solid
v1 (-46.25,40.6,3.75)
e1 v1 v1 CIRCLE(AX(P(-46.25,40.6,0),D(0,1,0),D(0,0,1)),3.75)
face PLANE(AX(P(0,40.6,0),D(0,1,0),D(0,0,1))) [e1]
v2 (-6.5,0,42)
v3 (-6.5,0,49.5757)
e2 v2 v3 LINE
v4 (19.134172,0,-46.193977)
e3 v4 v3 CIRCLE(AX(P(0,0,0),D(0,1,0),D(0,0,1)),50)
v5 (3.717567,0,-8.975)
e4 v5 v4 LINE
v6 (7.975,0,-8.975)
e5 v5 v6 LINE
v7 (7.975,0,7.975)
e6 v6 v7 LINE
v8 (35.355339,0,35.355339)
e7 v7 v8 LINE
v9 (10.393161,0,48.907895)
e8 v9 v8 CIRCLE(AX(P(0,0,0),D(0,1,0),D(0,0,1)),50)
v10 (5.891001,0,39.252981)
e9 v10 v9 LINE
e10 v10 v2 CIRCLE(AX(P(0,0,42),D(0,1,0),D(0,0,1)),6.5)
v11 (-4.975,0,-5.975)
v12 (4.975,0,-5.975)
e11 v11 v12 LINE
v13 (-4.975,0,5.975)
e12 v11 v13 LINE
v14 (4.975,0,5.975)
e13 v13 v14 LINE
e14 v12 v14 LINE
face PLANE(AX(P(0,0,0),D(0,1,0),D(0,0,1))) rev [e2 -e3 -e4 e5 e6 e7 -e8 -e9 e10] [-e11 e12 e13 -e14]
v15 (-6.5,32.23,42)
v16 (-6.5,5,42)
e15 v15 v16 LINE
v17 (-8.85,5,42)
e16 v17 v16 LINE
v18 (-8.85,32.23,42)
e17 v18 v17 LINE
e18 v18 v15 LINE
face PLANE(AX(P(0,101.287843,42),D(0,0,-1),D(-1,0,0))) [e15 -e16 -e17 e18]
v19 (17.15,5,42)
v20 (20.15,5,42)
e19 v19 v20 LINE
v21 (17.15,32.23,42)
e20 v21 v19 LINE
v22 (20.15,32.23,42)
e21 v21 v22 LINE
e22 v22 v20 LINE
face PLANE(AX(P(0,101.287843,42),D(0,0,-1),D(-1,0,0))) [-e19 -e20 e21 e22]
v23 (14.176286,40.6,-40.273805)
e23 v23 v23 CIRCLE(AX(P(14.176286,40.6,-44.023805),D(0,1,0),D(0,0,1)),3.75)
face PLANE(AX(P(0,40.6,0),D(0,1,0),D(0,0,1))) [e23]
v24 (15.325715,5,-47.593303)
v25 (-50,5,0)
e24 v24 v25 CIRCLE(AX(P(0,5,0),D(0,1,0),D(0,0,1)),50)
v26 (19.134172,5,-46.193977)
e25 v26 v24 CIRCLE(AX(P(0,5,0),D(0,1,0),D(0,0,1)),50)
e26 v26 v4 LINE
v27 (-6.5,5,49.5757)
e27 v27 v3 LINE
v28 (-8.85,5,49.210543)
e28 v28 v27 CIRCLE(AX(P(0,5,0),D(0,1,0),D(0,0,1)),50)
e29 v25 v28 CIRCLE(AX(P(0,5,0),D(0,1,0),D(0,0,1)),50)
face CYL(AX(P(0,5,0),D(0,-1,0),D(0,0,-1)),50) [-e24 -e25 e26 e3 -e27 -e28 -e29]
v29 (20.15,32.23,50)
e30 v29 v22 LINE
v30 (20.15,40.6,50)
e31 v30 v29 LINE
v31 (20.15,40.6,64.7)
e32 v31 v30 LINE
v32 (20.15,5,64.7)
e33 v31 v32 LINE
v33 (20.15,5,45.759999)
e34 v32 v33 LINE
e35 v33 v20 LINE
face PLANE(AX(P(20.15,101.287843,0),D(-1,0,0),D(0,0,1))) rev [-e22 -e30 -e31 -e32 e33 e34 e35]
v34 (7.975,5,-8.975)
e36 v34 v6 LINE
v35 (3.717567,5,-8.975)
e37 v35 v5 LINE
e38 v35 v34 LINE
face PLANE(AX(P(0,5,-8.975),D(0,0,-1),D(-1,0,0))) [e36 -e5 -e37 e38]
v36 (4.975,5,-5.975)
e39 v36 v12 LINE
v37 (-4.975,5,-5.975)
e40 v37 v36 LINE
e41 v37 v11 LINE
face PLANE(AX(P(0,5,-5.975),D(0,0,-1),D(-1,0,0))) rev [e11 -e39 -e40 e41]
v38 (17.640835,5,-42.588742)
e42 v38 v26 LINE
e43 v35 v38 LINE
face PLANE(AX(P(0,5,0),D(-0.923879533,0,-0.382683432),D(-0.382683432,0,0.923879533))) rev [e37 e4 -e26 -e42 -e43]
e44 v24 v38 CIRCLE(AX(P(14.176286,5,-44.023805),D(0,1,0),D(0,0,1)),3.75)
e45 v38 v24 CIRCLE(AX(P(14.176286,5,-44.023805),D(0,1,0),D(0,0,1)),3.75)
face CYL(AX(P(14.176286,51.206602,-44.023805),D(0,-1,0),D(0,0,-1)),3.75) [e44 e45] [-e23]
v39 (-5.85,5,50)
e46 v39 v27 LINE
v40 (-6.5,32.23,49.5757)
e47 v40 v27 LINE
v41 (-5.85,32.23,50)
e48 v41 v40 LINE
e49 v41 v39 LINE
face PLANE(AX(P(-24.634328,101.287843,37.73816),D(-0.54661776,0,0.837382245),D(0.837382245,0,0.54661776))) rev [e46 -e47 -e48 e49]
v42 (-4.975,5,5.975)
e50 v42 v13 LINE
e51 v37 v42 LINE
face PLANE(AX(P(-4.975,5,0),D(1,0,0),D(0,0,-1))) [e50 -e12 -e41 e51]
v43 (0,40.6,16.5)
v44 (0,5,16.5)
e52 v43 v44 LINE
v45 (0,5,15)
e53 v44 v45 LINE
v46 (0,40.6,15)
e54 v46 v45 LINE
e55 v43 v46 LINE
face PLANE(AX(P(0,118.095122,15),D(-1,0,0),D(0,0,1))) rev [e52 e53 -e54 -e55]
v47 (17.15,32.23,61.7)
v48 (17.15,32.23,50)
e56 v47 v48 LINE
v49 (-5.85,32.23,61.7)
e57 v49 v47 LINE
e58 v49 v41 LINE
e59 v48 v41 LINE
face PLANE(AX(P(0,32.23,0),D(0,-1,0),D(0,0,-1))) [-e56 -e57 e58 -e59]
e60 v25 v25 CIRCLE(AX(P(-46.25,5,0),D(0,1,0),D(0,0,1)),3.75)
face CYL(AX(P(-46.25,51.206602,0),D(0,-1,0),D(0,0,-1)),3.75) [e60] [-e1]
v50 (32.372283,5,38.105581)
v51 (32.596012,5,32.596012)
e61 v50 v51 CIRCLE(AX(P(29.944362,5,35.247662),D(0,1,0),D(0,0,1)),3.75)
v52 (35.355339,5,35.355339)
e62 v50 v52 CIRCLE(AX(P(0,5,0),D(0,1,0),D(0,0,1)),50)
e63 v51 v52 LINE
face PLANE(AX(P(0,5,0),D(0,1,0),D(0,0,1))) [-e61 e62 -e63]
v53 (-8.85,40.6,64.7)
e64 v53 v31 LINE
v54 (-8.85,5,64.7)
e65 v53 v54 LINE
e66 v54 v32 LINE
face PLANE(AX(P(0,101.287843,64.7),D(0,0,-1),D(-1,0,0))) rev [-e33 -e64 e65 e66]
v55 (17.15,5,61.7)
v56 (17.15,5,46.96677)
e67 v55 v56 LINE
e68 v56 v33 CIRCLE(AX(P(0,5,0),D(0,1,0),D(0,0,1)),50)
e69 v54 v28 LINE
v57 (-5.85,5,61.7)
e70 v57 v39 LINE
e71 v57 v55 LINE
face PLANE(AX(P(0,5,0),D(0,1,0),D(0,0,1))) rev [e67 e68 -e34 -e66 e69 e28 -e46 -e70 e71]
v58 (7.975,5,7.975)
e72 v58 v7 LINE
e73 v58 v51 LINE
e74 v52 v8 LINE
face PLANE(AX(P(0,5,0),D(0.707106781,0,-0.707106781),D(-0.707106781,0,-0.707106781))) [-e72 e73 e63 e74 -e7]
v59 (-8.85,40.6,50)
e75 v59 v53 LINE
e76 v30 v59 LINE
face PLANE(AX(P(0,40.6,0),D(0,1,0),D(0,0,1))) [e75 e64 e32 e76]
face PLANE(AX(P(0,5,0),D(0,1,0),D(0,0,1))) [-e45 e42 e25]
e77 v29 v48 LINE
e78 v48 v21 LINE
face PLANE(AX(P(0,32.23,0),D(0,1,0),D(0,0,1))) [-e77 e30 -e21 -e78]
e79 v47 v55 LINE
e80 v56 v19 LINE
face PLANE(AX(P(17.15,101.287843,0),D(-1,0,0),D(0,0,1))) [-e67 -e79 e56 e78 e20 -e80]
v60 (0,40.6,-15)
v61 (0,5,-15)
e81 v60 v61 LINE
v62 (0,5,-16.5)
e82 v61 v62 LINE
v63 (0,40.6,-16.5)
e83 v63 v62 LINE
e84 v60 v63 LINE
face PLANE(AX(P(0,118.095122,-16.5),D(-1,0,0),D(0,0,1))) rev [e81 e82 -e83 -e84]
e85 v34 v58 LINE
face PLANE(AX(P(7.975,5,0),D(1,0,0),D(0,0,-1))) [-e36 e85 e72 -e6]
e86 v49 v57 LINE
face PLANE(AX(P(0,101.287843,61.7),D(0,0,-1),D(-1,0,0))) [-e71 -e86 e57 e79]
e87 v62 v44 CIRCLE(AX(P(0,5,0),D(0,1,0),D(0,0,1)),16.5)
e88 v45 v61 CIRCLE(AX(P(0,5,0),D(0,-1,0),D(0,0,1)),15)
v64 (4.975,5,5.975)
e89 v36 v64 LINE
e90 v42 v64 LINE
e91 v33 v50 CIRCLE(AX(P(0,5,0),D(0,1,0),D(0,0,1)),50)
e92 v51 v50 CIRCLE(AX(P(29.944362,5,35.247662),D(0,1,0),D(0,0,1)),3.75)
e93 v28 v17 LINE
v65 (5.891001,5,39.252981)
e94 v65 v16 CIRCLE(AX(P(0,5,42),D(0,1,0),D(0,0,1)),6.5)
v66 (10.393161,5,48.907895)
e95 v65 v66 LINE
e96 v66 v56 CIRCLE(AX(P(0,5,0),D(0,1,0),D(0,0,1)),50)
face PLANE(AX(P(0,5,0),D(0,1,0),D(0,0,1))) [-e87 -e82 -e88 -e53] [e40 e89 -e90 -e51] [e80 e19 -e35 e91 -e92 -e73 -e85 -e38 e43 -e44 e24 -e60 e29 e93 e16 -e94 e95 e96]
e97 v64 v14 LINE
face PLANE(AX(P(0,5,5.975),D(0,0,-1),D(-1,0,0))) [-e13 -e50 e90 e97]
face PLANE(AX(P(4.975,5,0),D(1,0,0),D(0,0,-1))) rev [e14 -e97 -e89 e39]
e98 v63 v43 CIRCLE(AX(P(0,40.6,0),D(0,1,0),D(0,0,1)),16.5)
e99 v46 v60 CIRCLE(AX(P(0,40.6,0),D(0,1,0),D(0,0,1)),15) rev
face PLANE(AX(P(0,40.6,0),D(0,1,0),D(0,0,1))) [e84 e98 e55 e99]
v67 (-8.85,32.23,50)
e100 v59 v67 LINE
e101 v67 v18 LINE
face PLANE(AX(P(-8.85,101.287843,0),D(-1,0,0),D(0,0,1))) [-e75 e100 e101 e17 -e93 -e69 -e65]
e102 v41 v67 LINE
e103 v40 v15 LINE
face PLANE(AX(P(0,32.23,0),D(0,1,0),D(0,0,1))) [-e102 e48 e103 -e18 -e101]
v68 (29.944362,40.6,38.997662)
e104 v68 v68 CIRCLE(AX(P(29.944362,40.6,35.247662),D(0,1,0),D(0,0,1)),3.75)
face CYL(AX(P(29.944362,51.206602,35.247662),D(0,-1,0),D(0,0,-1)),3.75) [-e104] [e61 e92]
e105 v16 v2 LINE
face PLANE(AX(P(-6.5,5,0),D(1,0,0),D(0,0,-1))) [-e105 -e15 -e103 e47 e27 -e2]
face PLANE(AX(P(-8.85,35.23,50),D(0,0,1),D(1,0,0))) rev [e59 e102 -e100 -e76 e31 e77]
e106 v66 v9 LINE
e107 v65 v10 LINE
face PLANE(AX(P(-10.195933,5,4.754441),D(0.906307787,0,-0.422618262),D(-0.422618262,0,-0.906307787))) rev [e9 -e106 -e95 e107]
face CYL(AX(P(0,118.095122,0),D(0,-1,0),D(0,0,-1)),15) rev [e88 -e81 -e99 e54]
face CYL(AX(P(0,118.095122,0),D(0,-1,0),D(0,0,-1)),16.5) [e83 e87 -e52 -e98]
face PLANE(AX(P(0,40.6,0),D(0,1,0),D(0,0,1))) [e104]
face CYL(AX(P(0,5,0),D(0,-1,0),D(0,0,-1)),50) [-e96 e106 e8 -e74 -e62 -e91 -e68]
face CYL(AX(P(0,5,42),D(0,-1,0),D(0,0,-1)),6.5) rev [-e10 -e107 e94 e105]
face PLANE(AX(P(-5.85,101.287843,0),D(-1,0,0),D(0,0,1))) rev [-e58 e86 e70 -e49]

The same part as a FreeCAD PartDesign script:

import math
import FreeCAD as App
import Part
import Sketcher

V = App.Vector
Q = App.Units.Quantity


def add_polygon(sketch, points):
    """Adds a closed chain of lines whose ends are joined by coincident constraints."""
    first, n = sketch.GeometryCount, len(points)
    for a, b in zip(points, points[1:] + points[:1]):
        sketch.addGeometry(Part.LineSegment(App.Vector(*a, 0), App.Vector(*b, 0)), False)
    for i in range(n):
        sketch.addConstraint(Sketcher.Constraint("Coincident", first + i, 2, first + (i + 1) % n, 1))

doc = App.newDocument("Part")
body = doc.addObject("PartDesign::Body", "Body")

# Sketch on XZ plane
sketch1 = body.newObject("Sketcher::SketchObject", "Sketch")
sketch1.AttachmentSupport = (doc.getObject("XZ_Plane"), [""])
sketch1.MapMode = "FlatFace"
sketch1.addGeometry(Part.LineSegment(V(35.4, 35.4, 0), V(8, 8, 0)), False)  # 0
sketch1.addGeometry(Part.LineSegment(V(8, 8, 0), V(8, -9, 0)), False)  # 1
sketch1.addGeometry(Part.LineSegment(V(8, -9, 0), V(3.7, -9, 0)), False)  # 2
sketch1.addGeometry(Part.LineSegment(V(3.7, -9, 0), V(19.1, -46.2, 0)), False)  # 3
sketch1.addGeometry(Part.ArcOfCircle(Part.Circle(V(0, 0, 0), V(0, 0, 1), 50), math.radians(97), math.radians(292)), False)  # 4
sketch1.addGeometry(Part.LineSegment(V(-6.5, 49.6, 0), V(-6.5, 42, 0)), False)  # 5
sketch1.addGeometry(Part.ArcOfCircle(Part.Circle(V(0, 42, 0), V(0, 0, 1), 6.5), math.radians(180), math.radians(335)), False)  # 6
sketch1.addGeometry(Part.LineSegment(V(5.9, 39.3, 0), V(10.4, 48.9, 0)), False)  # 7
sketch1.addGeometry(Part.ArcOfCircle(Part.Circle(V(0, 0, 0), V(0, 0, 1), 50), math.radians(45), math.radians(78)), False)  # 8
add_polygon(sketch1, [(5, 6), (-5, 6), (-5, -6), (5, -6)])  # lines 9-12
sketch1.addConstraint([
    Sketcher.Constraint("Coincident", 0, 2, 1, 1),
    Sketcher.Constraint("Coincident", 1, 2, 2, 1),
    Sketcher.Constraint("Coincident", 2, 2, 3, 1),
    Sketcher.Constraint("Coincident", 3, 2, 4, 2),
    Sketcher.Constraint("Coincident", 4, 1, 5, 1),
    Sketcher.Constraint("Tangent", 5, 2, 6, 1),
    Sketcher.Constraint("Tangent", 6, 2, 7, 1),
    Sketcher.Constraint("Coincident", 7, 2, 8, 2),
    Sketcher.Constraint("Coincident", 8, 1, 0, 1),
    Sketcher.Constraint("Vertical", 1),
    Sketcher.Constraint("Horizontal", 2),
    Sketcher.Constraint("Vertical", 5),
    Sketcher.Constraint("Horizontal", 9),
    Sketcher.Constraint("Vertical", 10),
    Sketcher.Constraint("Horizontal", 11),
    Sketcher.Constraint("Vertical", 12),
    Sketcher.Constraint("Coincident", 4, 3, -1, 1),
    Sketcher.Constraint("Coincident", 8, 3, -1, 1),
    Sketcher.Constraint("Equal", 4, 8),
    Sketcher.Constraint("Symmetric", 9, 2, 11, 2, -1, 1),
    Sketcher.Constraint("PointOnObject", 6, 3, -2),
    Sketcher.Constraint("Radius", 4, 50.0),
    Sketcher.Constraint("Radius", 6, 6.5),
    Sketcher.Constraint("Angle", 0, Q("-135 deg")),
    Sketcher.Constraint("Angle", 7, Q("65 deg")),
    Sketcher.Constraint("DistanceY", -1, 1, 6, 3, 42.0),
    Sketcher.Constraint("Angle", 3, Q("-67.5 deg")),
    Sketcher.Constraint("DistanceY", 9, 2, 0, 2, 2.0),
    Sketcher.Constraint("DistanceY", 2, 2, 10, 2, 3.0),
    Sketcher.Constraint("DistanceX", 11, 2, 1, 2, 3.0),
    Sketcher.Constraint("DistanceX", 9, 2, 9, 1, 9.95),
    Sketcher.Constraint("DistanceY", 1, 2, 1, 1, 16.95),
    Sketcher.Constraint("Distance", 3, 40.28553),
])
pad1 = body.newObject("PartDesign::Pad", "Pad")
pad1.Profile = sketch1
pad1.Length = 5
pad1.Reversed = True

# Sketch on XZ plane
sketch2 = body.newObject("Sketcher::SketchObject", "Sketch001")
sketch2.AttachmentSupport = (doc.getObject("XZ_Plane"), [""])
sketch2.MapMode = "FlatFace"
sketch2.AttachmentOffset = App.Placement(V(0, 0, -5), App.Rotation())
add_polygon(sketch2, [(17.1, 61.7), (-5.8, 61.7), (-5.8, 50), (-6.5, 49.6), (-6.5, 42), (-8.8, 42), (-8.8, 64.7), (20.1, 64.7), (20.1, 42), (17.1, 42)])  # lines 0-9
sketch2.addConstraint([
    Sketcher.Constraint("Horizontal", 0),
    Sketcher.Constraint("Vertical", 1),
    Sketcher.Constraint("Vertical", 3),
    Sketcher.Constraint("Horizontal", 4),
    Sketcher.Constraint("Vertical", 5),
    Sketcher.Constraint("Horizontal", 6),
    Sketcher.Constraint("Vertical", 7),
    Sketcher.Constraint("Horizontal", 8),
    Sketcher.Constraint("Vertical", 9),
    Sketcher.Constraint("Horizontal", 4, 2, 7, 2),
    Sketcher.Constraint("DistanceX", 0, 2, 0, 1, 23.0),
    Sketcher.Constraint("DistanceX", 6, 1, 6, 2, 29.0),
    Sketcher.Constraint("DistanceX", 8, 2, 8, 1, 3.0),
    Sketcher.Constraint("DistanceY", 1, 2, 1, 1, 11.7),
    Sketcher.Constraint("DistanceY", 5, 1, 5, 2, 22.7),
    Sketcher.Constraint("DistanceY", 9, 1, 9, 2, 19.7),
    Sketcher.Constraint("DistanceY", -1, 1, 1, 2, 50.0),
    Sketcher.Constraint("DistanceX", 4, 2, 4, 1, 2.35),
    Sketcher.Constraint("DistanceX", 2, 2, -1, 1, 6.5),
    Sketcher.Constraint("DistanceY", 3, 2, 3, 1, 7.5757),
])
pad2 = body.newObject("PartDesign::Pad", "Pad001")
pad2.Profile = sketch2
pad2.Length = 27.23
pad2.Reversed = True

# Sketch on XZ plane
sketch3 = body.newObject("Sketcher::SketchObject", "Sketch002")
sketch3.AttachmentSupport = (doc.getObject("XZ_Plane"), [""])
sketch3.MapMode = "FlatFace"
sketch3.AttachmentOffset = App.Placement(V(0, 0, -32.23), App.Rotation())
add_polygon(sketch3, [(-9, 50), (-9, 65), (20, 65), (20, 50)])  # lines 0-3
sketch3.addConstraint([
    Sketcher.Constraint("Vertical", 0),
    Sketcher.Constraint("Horizontal", 1),
    Sketcher.Constraint("Vertical", 2),
    Sketcher.Constraint("Horizontal", 3),
    Sketcher.Constraint("DistanceX", 1, 1, 1, 2, 29.0),
    Sketcher.Constraint("DistanceY", 0, 1, 0, 2, 14.7),
    Sketcher.Constraint("DistanceY", -1, 1, 2, 2, 50.0),
    Sketcher.Constraint("DistanceX", 0, 2, -1, 1, 8.85),
])
pad3 = body.newObject("PartDesign::Pad", "Pad002")
pad3.Profile = sketch3
pad3.Length = 3
pad3.Reversed = True

# Sketch on XZ plane
sketch4 = body.newObject("Sketcher::SketchObject", "Sketch003")
sketch4.AttachmentSupport = (doc.getObject("XZ_Plane"), [""])
sketch4.MapMode = "FlatFace"
sketch4.AttachmentOffset = App.Placement(V(0, 0, -5), App.Rotation())
sketch4.addGeometry([
    Part.LineSegment(V(0, -15, 0), V(0, -16.5, 0)),
    Part.ArcOfCircle(Part.Circle(V(0, 0, 0), V(0, 0, 1), 16.5), math.radians(90), math.radians(270)),
    Part.LineSegment(V(0, 16.5, 0), V(0, 15, 0)),
    Part.ArcOfCircle(Part.Circle(V(0, 0, 0), V(0, 0, 1), 15), math.radians(90), math.radians(270)),
], False)
sketch4.addConstraint([
    Sketcher.Constraint("Coincident", 0, 2, 1, 2),
    Sketcher.Constraint("Coincident", 1, 1, 2, 1),
    Sketcher.Constraint("Coincident", 2, 2, 3, 1),
    Sketcher.Constraint("Coincident", 3, 2, 0, 1),
    Sketcher.Constraint("Vertical", 0),
    Sketcher.Constraint("Vertical", 2),
    Sketcher.Constraint("Coincident", 1, 3, -1, 1),
    Sketcher.Constraint("Coincident", 3, 3, -1, 1),
    Sketcher.Constraint("PointOnObject", 0, 2, -2),
    Sketcher.Constraint("PointOnObject", 1, 1, -2),
    Sketcher.Constraint("Radius", 3, 15.0),
    Sketcher.Constraint("Radius", 1, 16.5),
])
pad4 = body.newObject("PartDesign::Pad", "Pad003")
pad4.Profile = sketch4
pad4.Length = 35.6
pad4.Reversed = True

# Sketch on XZ plane
sketch5 = body.newObject("Sketcher::SketchObject", "Sketch004")
sketch5.AttachmentSupport = (doc.getObject("XZ_Plane"), [""])
sketch5.MapMode = "FlatFace"
sketch5.AttachmentOffset = App.Placement(V(0, 0, -35.23), App.Rotation())
add_polygon(sketch5, [(-9, 50), (-9, 65), (20, 65), (20, 50)])  # lines 0-3
sketch5.addConstraint([
    Sketcher.Constraint("Vertical", 0),
    Sketcher.Constraint("Horizontal", 1),
    Sketcher.Constraint("Vertical", 2),
    Sketcher.Constraint("Horizontal", 3),
    Sketcher.Constraint("DistanceX", 1, 1, 1, 2, 29.0),
    Sketcher.Constraint("DistanceY", 0, 1, 0, 2, 14.7),
    Sketcher.Constraint("DistanceY", -1, 1, 2, 2, 50.0),
    Sketcher.Constraint("DistanceX", 0, 2, -1, 1, 8.85),
])
pad5 = body.newObject("PartDesign::Pad", "Pad004")
pad5.Profile = sketch5
pad5.Length = 5.37
pad5.Reversed = True

# Sketch on XZ plane
sketch6 = body.newObject("Sketcher::SketchObject", "Sketch005")
sketch6.AttachmentSupport = (doc.getObject("XZ_Plane"), [""])
sketch6.MapMode = "FlatFace"
sketch6.AttachmentOffset = App.Placement(V(0, 0, -5), App.Rotation())
sketch6.addGeometry([
    Part.Circle(V(14.2, -44, 0), V(0, 0, 1), 3.8),
    Part.Circle(V(29.9, 35.2, 0), V(0, 0, 1), 3.8),
    Part.Circle(V(-46.2, 0, 0), V(0, 0, 1), 3.8),
], False)
sketch6.addConstraint([
    Sketcher.Constraint("Equal", 0, 1),
    Sketcher.Constraint("Equal", 1, 2),
    Sketcher.Constraint("PointOnObject", 2, 3, -1),
    Sketcher.Constraint("Diameter", 0, 7.5),
    Sketcher.Constraint("DistanceX", 2, 3, -1, 1, 46.25),
    Sketcher.Constraint("DistanceX", -1, 1, 1, 3, 29.944362),
    Sketcher.Constraint("DistanceX", -1, 1, 0, 3, 14.176286),
    Sketcher.Constraint("DistanceY", 0, 3, -1, 1, 44.023805),
    Sketcher.Constraint("DistanceY", -1, 1, 1, 3, 35.247662),
])
pad6 = body.newObject("PartDesign::Pad", "Pad005")
pad6.Profile = sketch6
pad6.Length = 35.6
pad6.Reversed = True

doc.recompute()
